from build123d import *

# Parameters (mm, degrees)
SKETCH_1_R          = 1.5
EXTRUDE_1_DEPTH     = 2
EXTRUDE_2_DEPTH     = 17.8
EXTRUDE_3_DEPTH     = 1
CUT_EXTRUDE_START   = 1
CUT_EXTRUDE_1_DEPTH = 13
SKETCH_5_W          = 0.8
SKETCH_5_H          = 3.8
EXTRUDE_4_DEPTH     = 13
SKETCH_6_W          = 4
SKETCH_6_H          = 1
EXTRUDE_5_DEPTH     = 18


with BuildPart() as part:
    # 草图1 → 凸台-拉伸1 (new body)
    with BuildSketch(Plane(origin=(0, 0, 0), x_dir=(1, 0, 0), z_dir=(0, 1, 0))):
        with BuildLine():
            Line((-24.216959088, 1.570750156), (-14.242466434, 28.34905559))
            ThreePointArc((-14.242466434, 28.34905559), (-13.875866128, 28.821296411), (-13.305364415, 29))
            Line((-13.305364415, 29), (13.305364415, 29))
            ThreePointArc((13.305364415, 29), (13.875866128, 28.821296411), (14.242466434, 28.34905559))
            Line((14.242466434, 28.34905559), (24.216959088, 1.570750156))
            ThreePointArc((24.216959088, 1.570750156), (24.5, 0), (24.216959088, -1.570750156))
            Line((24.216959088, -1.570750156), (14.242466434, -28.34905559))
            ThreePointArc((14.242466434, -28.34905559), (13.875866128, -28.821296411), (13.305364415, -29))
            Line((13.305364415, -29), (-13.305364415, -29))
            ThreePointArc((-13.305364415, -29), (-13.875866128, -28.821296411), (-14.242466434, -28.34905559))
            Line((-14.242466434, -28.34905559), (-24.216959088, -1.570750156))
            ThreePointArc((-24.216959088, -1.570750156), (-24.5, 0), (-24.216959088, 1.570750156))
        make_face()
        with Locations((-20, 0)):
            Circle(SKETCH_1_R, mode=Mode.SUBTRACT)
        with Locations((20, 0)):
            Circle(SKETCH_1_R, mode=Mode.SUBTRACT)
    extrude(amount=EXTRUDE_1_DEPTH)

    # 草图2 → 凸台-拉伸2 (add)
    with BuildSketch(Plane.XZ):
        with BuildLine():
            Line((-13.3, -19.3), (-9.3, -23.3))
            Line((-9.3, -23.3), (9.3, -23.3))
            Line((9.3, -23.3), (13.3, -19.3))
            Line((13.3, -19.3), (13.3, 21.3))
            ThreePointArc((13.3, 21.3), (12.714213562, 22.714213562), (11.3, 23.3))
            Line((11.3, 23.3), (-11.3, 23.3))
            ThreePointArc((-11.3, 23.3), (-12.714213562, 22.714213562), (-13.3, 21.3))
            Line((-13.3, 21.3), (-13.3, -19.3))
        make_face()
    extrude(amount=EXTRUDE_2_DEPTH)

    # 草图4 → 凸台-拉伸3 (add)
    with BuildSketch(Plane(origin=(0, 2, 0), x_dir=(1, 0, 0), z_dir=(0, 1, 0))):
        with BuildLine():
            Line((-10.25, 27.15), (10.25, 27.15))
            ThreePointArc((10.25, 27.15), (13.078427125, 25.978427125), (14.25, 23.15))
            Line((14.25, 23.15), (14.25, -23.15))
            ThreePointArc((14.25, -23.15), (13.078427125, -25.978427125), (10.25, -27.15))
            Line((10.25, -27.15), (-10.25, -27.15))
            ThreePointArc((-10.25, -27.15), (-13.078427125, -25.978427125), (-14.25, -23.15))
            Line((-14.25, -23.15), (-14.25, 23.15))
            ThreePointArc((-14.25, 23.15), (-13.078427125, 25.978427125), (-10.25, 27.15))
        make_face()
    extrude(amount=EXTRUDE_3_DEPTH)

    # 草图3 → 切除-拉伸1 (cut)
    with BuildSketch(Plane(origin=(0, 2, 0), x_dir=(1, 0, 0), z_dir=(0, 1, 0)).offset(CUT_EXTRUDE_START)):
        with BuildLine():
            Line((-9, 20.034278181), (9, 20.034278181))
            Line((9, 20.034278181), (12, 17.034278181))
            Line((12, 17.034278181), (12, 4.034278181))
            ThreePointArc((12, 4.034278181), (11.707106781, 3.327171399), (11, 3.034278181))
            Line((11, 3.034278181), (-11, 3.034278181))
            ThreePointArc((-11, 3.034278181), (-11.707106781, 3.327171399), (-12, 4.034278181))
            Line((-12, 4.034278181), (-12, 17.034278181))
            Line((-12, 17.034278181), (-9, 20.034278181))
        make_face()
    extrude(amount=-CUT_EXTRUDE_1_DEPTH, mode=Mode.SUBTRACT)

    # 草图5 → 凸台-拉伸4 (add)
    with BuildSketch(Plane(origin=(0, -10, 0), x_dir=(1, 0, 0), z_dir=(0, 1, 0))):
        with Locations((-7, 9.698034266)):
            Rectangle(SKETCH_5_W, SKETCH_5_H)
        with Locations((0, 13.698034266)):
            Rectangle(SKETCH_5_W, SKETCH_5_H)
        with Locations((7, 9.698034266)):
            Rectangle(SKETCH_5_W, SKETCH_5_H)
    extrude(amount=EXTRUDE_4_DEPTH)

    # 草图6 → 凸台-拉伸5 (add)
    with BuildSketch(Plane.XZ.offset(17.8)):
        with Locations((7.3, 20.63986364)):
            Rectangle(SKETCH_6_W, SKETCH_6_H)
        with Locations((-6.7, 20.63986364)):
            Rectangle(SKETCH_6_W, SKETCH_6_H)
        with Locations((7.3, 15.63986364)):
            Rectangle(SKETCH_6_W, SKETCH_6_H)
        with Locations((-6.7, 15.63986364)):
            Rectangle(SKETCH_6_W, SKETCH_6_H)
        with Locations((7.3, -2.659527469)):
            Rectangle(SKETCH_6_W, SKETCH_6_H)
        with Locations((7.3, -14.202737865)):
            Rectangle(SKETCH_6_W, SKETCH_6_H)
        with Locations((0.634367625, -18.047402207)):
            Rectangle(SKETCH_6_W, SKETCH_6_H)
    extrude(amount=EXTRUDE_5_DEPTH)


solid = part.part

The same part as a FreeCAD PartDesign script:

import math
import FreeCAD as App
import Part
import Sketcher


def add_polygon(sketch, points):
    """Adds a closed chain of lines whose ends are joined by coincident constraints."""
    first, n = sketch.GeometryCount, len(points)
    for a, b in zip(points, points[1:] + points[:1]):
        sketch.addGeometry(Part.LineSegment(App.Vector(*a, 0), App.Vector(*b, 0)), False)
    for i in range(n):
        sketch.addConstraint(Sketcher.Constraint("Coincident", first + i, 2, first + (i + 1) % n, 1))

doc = App.newDocument("Part")
body = doc.addObject("PartDesign::Body", "Body")

# Sketch on XZ plane
sketch1 = body.newObject("Sketcher::SketchObject", "Sketch")
sketch1.AttachmentSupport = (doc.getObject("XZ_Plane"), [""])
sketch1.MapMode = "FlatFace"
sketch1.addGeometry([
    Part.LineSegment(App.Vector(-14.2, -28.3, 0), App.Vector(-24.2, -1.6, 0)),  # 0
    Part.ArcOfCircle(Part.Circle(App.Vector(-20, 0, 0), App.Vector(0, 0, 1), 4.5), math.radians(160), math.radians(200)),  # 1
    Part.LineSegment(App.Vector(-24.2, 1.6, 0), App.Vector(-14.2, 28.3, 0)),  # 2
    Part.ArcOfCircle(Part.Circle(App.Vector(-13.3, 28, 0), App.Vector(0, 0, 1), 1), math.radians(90), math.radians(160)),  # 3
    Part.LineSegment(App.Vector(-13.3, 29, 0), App.Vector(13.3, 29, 0)),  # 4
    Part.ArcOfCircle(Part.Circle(App.Vector(13.3, 28, 0), App.Vector(0, 0, 1), 1), math.radians(20), math.radians(90)),  # 5
    Part.LineSegment(App.Vector(14.2, 28.3, 0), App.Vector(24.2, 1.6, 0)),  # 6
    Part.ArcOfCircle(Part.Circle(App.Vector(20, 0, 0), App.Vector(0, 0, 1), 4.5), math.radians(-20), math.radians(20)),  # 7
    Part.LineSegment(App.Vector(24.2, -1.6, 0), App.Vector(14.2, -28.3, 0)),  # 8
    Part.ArcOfCircle(Part.Circle(App.Vector(13.3, -28, 0), App.Vector(0, 0, 1), 1), math.radians(-90), math.radians(-20)),  # 9
    Part.LineSegment(App.Vector(13.3, -29, 0), App.Vector(-13.3, -29, 0)),  # 10
    Part.ArcOfCircle(Part.Circle(App.Vector(-13.3, -28, 0), App.Vector(0, 0, 1), 1), math.radians(-160), math.radians(-90)),  # 11
    Part.Circle(App.Vector(20, 0, 0), App.Vector(0, 0, 1), 1.5),  # 12
    Part.Circle(App.Vector(-20, 0, 0), App.Vector(0, 0, 1), 1.5),  # 13
], False)
sketch1.addConstraint([
    Sketcher.Constraint("Tangent", 0, 2, 1, 2),
    Sketcher.Constraint("Tangent", 1, 1, 2, 1),
    Sketcher.Constraint("Tangent", 2, 2, 3, 2),
    Sketcher.Constraint("Tangent", 3, 1, 4, 1),
    Sketcher.Constraint("Tangent", 4, 2, 5, 2),
    Sketcher.Constraint("Tangent", 5, 1, 6, 1),
    Sketcher.Constraint("Tangent", 6, 2, 7, 2),
    Sketcher.Constraint("Tangent", 7, 1, 8, 1),
    Sketcher.Constraint("Tangent", 8, 2, 9, 2),
    Sketcher.Constraint("Tangent", 9, 1, 10, 1),
    Sketcher.Constraint("Tangent", 10, 2, 11, 2),
    Sketcher.Constraint("Tangent", 11, 1, 0, 1),
    Sketcher.Constraint("Horizontal", 4),
    Sketcher.Constraint("Horizontal", 10),
    Sketcher.Constraint("Coincident", 12, 3, 7, 3),
    Sketcher.Constraint("Coincident", 13, 3, 1, 3),
    Sketcher.Constraint("Equal", 3, 5),
    Sketcher.Constraint("Equal", 1, 7),
    Sketcher.Constraint("Equal", 5, 9),
    Sketcher.Constraint("Equal", 9, 11),
    Sketcher.Constraint("Equal", 12, 13),
    Sketcher.Constraint("Symmetric", 1, 3, 7, 3, -1, 1),
    Sketcher.Constraint("Symmetric", 3, 3, 9, 3, -1, 1),
    Sketcher.Constraint("Symmetric", 2, 2, 5, 1, -2),
    Sketcher.Constraint("Parallel", 0, 6),
    Sketcher.Constraint("Diameter", 12, 3.0),
    Sketcher.Constraint("Radius", 3, 1.0),
    Sketcher.Constraint("Radius", 1, 4.5),
    Sketcher.Constraint("DistanceX", 1, 3, -1, 1, 20.0),
    Sketcher.Constraint("DistanceY", -1, 1, 3, 3, 28.0),
    Sketcher.Constraint("DistanceX", 4, 1, 4, 2, 26.610729),
])
pad1 = body.newObject("PartDesign::Pad", "Pad")
pad1.Profile = sketch1
pad1.Length = 2
pad1.Reversed = True

# Sketch on XZ plane
sketch2 = body.newObject("Sketcher::SketchObject", "Sketch001")
sketch2.AttachmentSupport = (doc.getObject("XZ_Plane"), [""])
sketch2.MapMode = "FlatFace"
sketch2.addGeometry([
    Part.LineSegment(App.Vector(-13.3, -19.3, 0), App.Vector(-9.3, -23.3, 0)),  # 0
    Part.LineSegment(App.Vector(-9.3, -23.3, 0), App.Vector(9.3, -23.3, 0)),  # 1
    Part.LineSegment(App.Vector(9.3, -23.3, 0), App.Vector(13.3, -19.3, 0)),  # 2
    Part.LineSegment(App.Vector(13.3, -19.3, 0), App.Vector(13.3, 21.3, 0)),  # 3
    Part.ArcOfCircle(Part.Circle(App.Vector(11.3, 21.3, 0), App.Vector(0, 0, 1), 2), math.radians(0), math.radians(90)),  # 4
    Part.LineSegment(App.Vector(11.3, 23.3, 0), App.Vector(-11.3, 23.3, 0)),  # 5
    Part.ArcOfCircle(Part.Circle(App.Vector(-11.3, 21.3, 0), App.Vector(0, 0, 1), 2), math.radians(90), math.radians(180)),  # 6
    Part.LineSegment(App.Vector(-13.3, 21.3, 0), App.Vector(-13.3, -19.3, 0)),  # 7
], False)
sketch2.addConstraint([
    Sketcher.Constraint("Coincident", 0, 2, 1, 1),
    Sketcher.Constraint("Coincident", 1, 2, 2, 1),
    Sketcher.Constraint("Coincident", 2, 2, 3, 1),
    Sketcher.Constraint("Tangent", 3, 2, 4, 1),
    Sketcher.Constraint("Tangent", 4, 2, 5, 1),
    Sketcher.Constraint("Tangent", 5, 2, 6, 1),
    Sketcher.Constraint("Tangent", 6, 2, 7, 1),
    Sketcher.Constraint("Coincident", 7, 2, 0, 1),
    Sketcher.Constraint("Horizontal", 1),
    Sketcher.Constraint("Vertical", 3),
    Sketcher.Constraint("Horizontal", 5),
    Sketcher.Constraint("Vertical", 7),
    Sketcher.Constraint("Equal", 4, 6),
    Sketcher.Constraint("Symmetric", 2, 2, 7, 2, -2),
    Sketcher.Constraint("Perpendicular", 0, 2),
    Sketcher.Constraint("Equal", 0, 2),
    Sketcher.Constraint("Radius", 4, 2.0),
    Sketcher.Constraint("DistanceX", 1, 1, 1, 2, 18.6),
    Sketcher.Constraint("DistanceX", 5, 2, 5, 1, 22.6),
    Sketcher.Constraint("DistanceY", 3, 1, 3, 2, 40.6),
    Sketcher.Constraint("DistanceY", -1, 1, 4, 3, 21.3),
])
pad2 = body.newObject("PartDesign::Pad", "Pad001")
pad2.Profile = sketch2
pad2.Length = 17.8

# Sketch on XZ plane
sketch3 = body.newObject("Sketcher::SketchObject", "Sketch002")
sketch3.AttachmentSupport = (doc.getObject("XZ_Plane"), [""])
sketch3.MapMode = "FlatFace"
sketch3.AttachmentOffset = App.Placement(App.Vector(0, 0, -2), App.Rotation())
sketch3.addGeometry([
    Part.LineSegment(App.Vector(10.2, -27.1, 0), App.Vector(-10.2, -27.1, 0)),  # 0
    Part.ArcOfCircle(Part.Circle(App.Vector(-10.3, -23.2, 0), App.Vector(0, 0, 1), 4), math.radians(180), math.radians(270)),  # 1
    Part.LineSegment(App.Vector(-14.2, -23.1, 0), App.Vector(-14.2, 23.1, 0)),  # 2
    Part.ArcOfCircle(Part.Circle(App.Vector(-10.3, 23.2, 0), App.Vector(0, 0, 1), 4), math.radians(90), math.radians(180)),  # 3
    Part.LineSegment(App.Vector(-10.2, 27.1, 0), App.Vector(10.2, 27.1, 0)),  # 4
    Part.ArcOfCircle(Part.Circle(App.Vector(10.3, 23.2, 0), App.Vector(0, 0, 1), 4), math.radians(0), math.radians(90)),  # 5
    Part.LineSegment(App.Vector(14.2, 23.1, 0), App.Vector(14.2, -23.1, 0)),  # 6
    Part.ArcOfCircle(Part.Circle(App.Vector(10.3, -23.2, 0), App.Vector(0, 0, 1), 4), math.radians(-90), math.radians(0)),  # 7
], False)
sketch3.addConstraint([
    Sketcher.Constraint("Tangent", 0, 2, 1, 2),
    Sketcher.Constraint("Tangent", 1, 1, 2, 1),
    Sketcher.Constraint("Tangent", 2, 2, 3, 2),
    Sketcher.Constraint("Tangent", 3, 1, 4, 1),
    Sketcher.Constraint("Tangent", 4, 2, 5, 2),
    Sketcher.Constraint("Tangent", 5, 1, 6, 1),
    Sketcher.Constraint("Tangent", 6, 2, 7, 2),
    Sketcher.Constraint("Tangent", 7, 1, 0, 1),
    Sketcher.Constraint("Horizontal", 0),
    Sketcher.Constraint("Vertical", 2),
    Sketcher.Constraint("Horizontal", 4),
    Sketcher.Constraint("Vertical", 6),
    Sketcher.Constraint("Equal", 1, 3),
    Sketcher.Constraint("Equal", 3, 5),
    Sketcher.Constraint("Equal", 5, 7),
    Sketcher.Constraint("Symmetric", 1, 3, 5, 3, -1, 1),
    Sketcher.Constraint("Radius", 1, 4.0),
    Sketcher.Constraint("DistanceX", 0, 2, 0, 1, 20.5),
    Sketcher.Constraint("DistanceY", 2, 1, 2, 2, 46.3),
])
pad3 = body.newObject("PartDesign::Pad", "Pad002")
pad3.Profile = sketch3
pad3.Length = 1
pad3.Reversed = True

# Sketch on XZ plane
sketch4 = body.newObject("Sketcher::SketchObject", "Sketch003")
sketch4.AttachmentSupport = (doc.getObject("XZ_Plane"), [""])
sketch4.MapMode = "FlatFace"
sketch4.AttachmentOffset = App.Placement(App.Vector(0, 0, -3), App.Rotation())
sketch4.addGeometry([
    Part.LineSegment(App.Vector(9, -20, 0), App.Vector(-9, -20, 0)),  # 0
    Part.LineSegment(App.Vector(-9, -20, 0), App.Vector(-12, -17, 0)),  # 1
    Part.LineSegment(App.Vector(-12, -17, 0), App.Vector(-12, -4, 0)),  # 2
    Part.ArcOfCircle(Part.Circle(App.Vector(-11, -4, 0), App.Vector(0, 0, 1), 1), math.radians(90), math.radians(180)),  # 3
    Part.LineSegment(App.Vector(-11, -3, 0), App.Vector(11, -3, 0)),  # 4
    Part.ArcOfCircle(Part.Circle(App.Vector(11, -4, 0), App.Vector(0, 0, 1), 1), math.radians(0), math.radians(90)),  # 5
    Part.LineSegment(App.Vector(12, -4, 0), App.Vector(12, -17, 0)),  # 6
    Part.LineSegment(App.Vector(12, -17, 0), App.Vector(9, -20, 0)),  # 7
], False)
sketch4.addConstraint([
    Sketcher.Constraint("Coincident", 0, 2, 1, 1),
    Sketcher.Constraint("Coincident", 1, 2, 2, 1),
    Sketcher.Constraint("Tangent", 2, 2, 3, 2),
    Sketcher.Constraint("Tangent", 3, 1, 4, 1),
    Sketcher.Constraint("Tangent", 4, 2, 5, 2),
    Sketcher.Constraint("Tangent", 5, 1, 6, 1),
    Sketcher.Constraint("Coincident", 6, 2, 7, 1),
    Sketcher.Constraint("Coincident", 7, 2, 0, 1),
    Sketcher.Constraint("Horizontal", 0),
    Sketcher.Constraint("Vertical", 2),
    Sketcher.Constraint("Horizontal", 4),
    Sketcher.Constraint("Vertical", 6),
    Sketcher.Constraint("Equal", 3, 5),
    Sketcher.Constraint("Symmetric", 1, 2, 6, 2, -2),
    Sketcher.Constraint("Perpendicular", 1, 7),
    Sketcher.Constraint("Equal", 1, 7),
    Sketcher.Constraint("Radius", 3, 1.0),
    Sketcher.Constraint("DistanceX", 0, 2, 0, 1, 18.0),
    Sketcher.Constraint("DistanceX", 4, 1, 4, 2, 22.0),
    Sketcher.Constraint("DistanceY", 2, 1, 2, 2, 13.0),
    Sketcher.Constraint("DistanceY", 3, 3, -1, 1, 4.034278),
])
pocket1 = body.newObject("PartDesign::Pocket", "Pocket")
pocket1.Profile = sketch4
pocket1.Length = 13
pocket1.Reversed = True

# Sketch on XZ plane
sketch5 = body.newObject("Sketcher::SketchObject", "Sketch004")
sketch5.AttachmentSupport = (doc.getObject("XZ_Plane"), [""])
sketch5.MapMode = "FlatFace"
sketch5.AttachmentOffset = App.Placement(App.Vector(0, 0, 10), App.Rotation())
add_polygon(sketch5, [(-7.4, -11.6), (-7.4, -7.8), (-6.6, -7.8), (-6.6, -11.6)])  # lines 0-3
add_polygon(sketch5, [(-0.4, -15.6), (-0.4, -11.8), (0.4, -11.8), (0.4, -15.6)])  # lines 4-7
add_polygon(sketch5, [(6.6, -11.6), (6.6, -7.8), (7.4, -7.8), (7.4, -11.6)])  # lines 8-11
sketch5.addConstraint([
    Sketcher.Constraint("Vertical", 0),
    Sketcher.Constraint("Horizontal", 1),
    Sketcher.Constraint("Vertical", 2),
    Sketcher.Constraint("Horizontal", 3),
    Sketcher.Constraint("Vertical", 4),
    Sketcher.Constraint("Horizontal", 5),
    Sketcher.Constraint("Vertical", 6),
    Sketcher.Constraint("Horizontal", 7),
    Sketcher.Constraint("Vertical", 8),
    Sketcher.Constraint("Horizontal", 9),
    Sketcher.Constraint("Vertical", 10),
    Sketcher.Constraint("Horizontal", 11),
    Sketcher.Constraint("Symmetric", 1, 2, 8, 2, -2),
    Sketcher.Constraint("Symmetric", 3, 2, 10, 2, -2),
    Sketcher.Constraint("Equal", 3, 5),
    Sketcher.Constraint("Equal", 2, 4),
    Sketcher.Constraint("DistanceX", 1, 1, 1, 2, 0.8),
    Sketcher.Constraint("DistanceY", 0, 1, 0, 2, 3.8),
    Sketcher.Constraint("DistanceX", 3, 2, 4, 2, 7.0),
    Sketcher.Constraint("DistanceY", 4, 2, 1, 2, 4.0),
    Sketcher.Constraint("DistanceX", 4, 2, 8, 2, 7.0),
    Sketcher.Constraint("DistanceY", 0, 2, -1, 1, 7.798034),
])
pad4 = body.newObject("PartDesign::Pad", "Pad003")
pad4.Profile = sketch5
pad4.Length = 13
pad4.Reversed = True

# Sketch on XZ plane
sketch6 = body.newObject("Sketcher::SketchObject", "Sketch005")
sketch6.AttachmentSupport = (doc.getObject("XZ_Plane"), [""])
sketch6.MapMode = "FlatFace"
sketch6.AttachmentOffset = App.Placement(App.Vector(0, 0, 17.8), App.Rotation())
add_polygon(sketch6, [(5.3, 21.1), (5.3, 20.1), (9.3, 20.1), (9.3, 21.1)])  # lines 0-3
add_polygon(sketch6, [(-8.7, 21.1), (-8.7, 20.1), (-4.7, 20.1), (-4.7, 21.1)])  # lines 4-7
add_polygon(sketch6, [(5.3, 16.1), (5.3, 15.1), (9.3, 15.1), (9.3, 16.1)])  # lines 8-11
add_polygon(sketch6, [(-8.7, 16.1), (-8.7, 15.1), (-4.7, 15.1), (-4.7, 16.1)])  # lines 12-15
add_polygon(sketch6, [(5.3, -2.2), (5.3, -3.2), (9.3, -3.2), (9.3, -2.2)])  # lines 16-19
add_polygon(sketch6, [(5.3, -13.7), (5.3, -14.7), (9.3, -14.7), (9.3, -13.7)])  # lines 20-23
add_polygon(sketch6, [(-1.4, -17.5), (-1.4, -18.5), (2.6, -18.5), (2.6, -17.5)])  # lines 24-27
sketch6.addConstraint([
    Sketcher.Constraint("Vertical", 0),
    Sketcher.Constraint("Horizontal", 1),
    Sketcher.Constraint("Vertical", 2),
    Sketcher.Constraint("Horizontal", 3),
    Sketcher.Constraint("Vertical", 4),
    Sketcher.Constraint("Horizontal", 5),
    Sketcher.Constraint("Vertical", 6),
    Sketcher.Constraint("Horizontal", 7),
    Sketcher.Constraint("Vertical", 8),
    Sketcher.Constraint("Horizontal", 9),
    Sketcher.Constraint("Vertical", 10),
    Sketcher.Constraint("Horizontal", 11),
    Sketcher.Constraint("Vertical", 12),
    Sketcher.Constraint("Horizontal", 13),
    Sketcher.Constraint("Vertical", 14),
    Sketcher.Constraint("Horizontal", 15),
    Sketcher.Constraint("Vertical", 16),
    Sketcher.Constraint("Horizontal", 17),
    Sketcher.Constraint("Vertical", 18),
    Sketcher.Constraint("Horizontal", 19),
    Sketcher.Constraint("Vertical", 20),
    Sketcher.Constraint("Horizontal", 21),
    Sketcher.Constraint("Vertical", 22),
    Sketcher.Constraint("Horizontal", 23),
    Sketcher.Constraint("Vertical", 24),
    Sketcher.Constraint("Horizontal", 25),
    Sketcher.Constraint("Vertical", 26),
    Sketcher.Constraint("Horizontal", 27),
    Sketcher.Constraint("Horizontal", 1, 2, 4, 2),
    Sketcher.Constraint("Horizontal", 3, 2, 6, 2),
    Sketcher.Constraint("Horizontal", 9, 2, 12, 2),
    Sketcher.Constraint("Horizontal", 11, 2, 14, 2),
    Sketcher.Constraint("Vertical", 3, 2, 8, 2),
    Sketcher.Constraint("Vertical", 2, 2, 9, 2),
    Sketcher.Constraint("Vertical", 7, 2, 12, 2),
    Sketcher.Constraint("Vertical", 6, 2, 13, 2),
    Sketcher.Constraint("Vertical", 11, 2, 16, 2),
    Sketcher.Constraint("Vertical", 10, 2, 17, 2),
    Sketcher.Constraint("Vertical", 19, 2, 20, 2),
    Sketcher.Constraint("Vertical", 18, 2, 21, 2),
    Sketcher.Constraint("Equal", 3, 5),
    Sketcher.Constraint("Equal", 23, 25),
    Sketcher.Constraint("Equal", 6, 8),
    Sketcher.Constraint("Equal", 14, 16),
    Sketcher.Constraint("Equal", 18, 20),
    Sketcher.Constraint("Equal", 22, 24),
    Sketcher.Constraint("DistanceX", 1, 1, 1, 2, 4.0),
    Sketcher.Constraint("DistanceY", 0, 2, 0, 1, 1.0),
    Sketcher.Constraint("DistanceX", 4, 2, 0, 2, 14.0),
    Sketcher.Constraint("DistanceY", 8, 2, 0, 2, 5.0),
    Sketcher.Constraint("DistanceX", -1, 1, 0, 2, 5.3),
    Sketcher.Constraint("DistanceY", 20, 2, 8, 2, 29.842602),
    Sketcher.Constraint("DistanceY", 16, 2, 8, 2, 18.299391),
    Sketcher.Constraint("DistanceY", -1, 1, 0, 2, 20.139864),
    Sketcher.Constraint("DistanceX", 24, 2, -1, 1, 1.365632),
    Sketcher.Constraint("DistanceY", 24, 2, -1, 1, 18.547402),
])
pad5 = body.newObject("PartDesign::Pad", "Pad004")
pad5.Profile = sketch6
pad5.Length = 18

doc.recompute()
